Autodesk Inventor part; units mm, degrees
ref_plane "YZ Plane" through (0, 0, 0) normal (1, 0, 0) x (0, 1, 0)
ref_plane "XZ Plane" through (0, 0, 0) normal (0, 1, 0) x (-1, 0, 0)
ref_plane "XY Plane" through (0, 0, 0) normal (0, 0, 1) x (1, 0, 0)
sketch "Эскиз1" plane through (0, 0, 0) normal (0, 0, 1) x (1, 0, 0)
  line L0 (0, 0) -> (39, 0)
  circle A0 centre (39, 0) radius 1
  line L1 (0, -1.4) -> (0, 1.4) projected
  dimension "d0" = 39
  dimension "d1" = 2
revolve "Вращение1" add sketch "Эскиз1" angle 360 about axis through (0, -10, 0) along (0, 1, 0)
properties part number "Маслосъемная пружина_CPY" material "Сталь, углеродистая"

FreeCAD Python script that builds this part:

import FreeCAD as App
import Part
import Sketcher

V = App.Vector
Q = App.Units.Quantity

doc = App.newDocument("Part")
body = doc.addObject("PartDesign::Body", "Body")

# Sketch on XY plane
sketch1 = body.newObject("Sketcher::SketchObject", "Sketch")
sketch1.AttachmentSupport = (doc.getObject("XY_Plane"), [""])
sketch1.MapMode = "FlatFace"
sketch1.addGeometry(Part.Circle(V(39, 0, 0), V(0, 0, 1), 1), False)
sketch1.addConstraint([
    Sketcher.Constraint("PointOnObject", 0, 3, -1),
    Sketcher.Constraint("Diameter", 0, Q("2 mm")),
    Sketcher.Constraint("DistanceX", -1, 1, 0, 3, Q("39 mm")),
])
revolution = body.newObject("PartDesign::Revolution", "Revolution")
revolution.Profile = sketch1
revolution.ReferenceAxis = (sketch1, ["V_Axis"])
revolution.Angle = 360

doc.recompute()
